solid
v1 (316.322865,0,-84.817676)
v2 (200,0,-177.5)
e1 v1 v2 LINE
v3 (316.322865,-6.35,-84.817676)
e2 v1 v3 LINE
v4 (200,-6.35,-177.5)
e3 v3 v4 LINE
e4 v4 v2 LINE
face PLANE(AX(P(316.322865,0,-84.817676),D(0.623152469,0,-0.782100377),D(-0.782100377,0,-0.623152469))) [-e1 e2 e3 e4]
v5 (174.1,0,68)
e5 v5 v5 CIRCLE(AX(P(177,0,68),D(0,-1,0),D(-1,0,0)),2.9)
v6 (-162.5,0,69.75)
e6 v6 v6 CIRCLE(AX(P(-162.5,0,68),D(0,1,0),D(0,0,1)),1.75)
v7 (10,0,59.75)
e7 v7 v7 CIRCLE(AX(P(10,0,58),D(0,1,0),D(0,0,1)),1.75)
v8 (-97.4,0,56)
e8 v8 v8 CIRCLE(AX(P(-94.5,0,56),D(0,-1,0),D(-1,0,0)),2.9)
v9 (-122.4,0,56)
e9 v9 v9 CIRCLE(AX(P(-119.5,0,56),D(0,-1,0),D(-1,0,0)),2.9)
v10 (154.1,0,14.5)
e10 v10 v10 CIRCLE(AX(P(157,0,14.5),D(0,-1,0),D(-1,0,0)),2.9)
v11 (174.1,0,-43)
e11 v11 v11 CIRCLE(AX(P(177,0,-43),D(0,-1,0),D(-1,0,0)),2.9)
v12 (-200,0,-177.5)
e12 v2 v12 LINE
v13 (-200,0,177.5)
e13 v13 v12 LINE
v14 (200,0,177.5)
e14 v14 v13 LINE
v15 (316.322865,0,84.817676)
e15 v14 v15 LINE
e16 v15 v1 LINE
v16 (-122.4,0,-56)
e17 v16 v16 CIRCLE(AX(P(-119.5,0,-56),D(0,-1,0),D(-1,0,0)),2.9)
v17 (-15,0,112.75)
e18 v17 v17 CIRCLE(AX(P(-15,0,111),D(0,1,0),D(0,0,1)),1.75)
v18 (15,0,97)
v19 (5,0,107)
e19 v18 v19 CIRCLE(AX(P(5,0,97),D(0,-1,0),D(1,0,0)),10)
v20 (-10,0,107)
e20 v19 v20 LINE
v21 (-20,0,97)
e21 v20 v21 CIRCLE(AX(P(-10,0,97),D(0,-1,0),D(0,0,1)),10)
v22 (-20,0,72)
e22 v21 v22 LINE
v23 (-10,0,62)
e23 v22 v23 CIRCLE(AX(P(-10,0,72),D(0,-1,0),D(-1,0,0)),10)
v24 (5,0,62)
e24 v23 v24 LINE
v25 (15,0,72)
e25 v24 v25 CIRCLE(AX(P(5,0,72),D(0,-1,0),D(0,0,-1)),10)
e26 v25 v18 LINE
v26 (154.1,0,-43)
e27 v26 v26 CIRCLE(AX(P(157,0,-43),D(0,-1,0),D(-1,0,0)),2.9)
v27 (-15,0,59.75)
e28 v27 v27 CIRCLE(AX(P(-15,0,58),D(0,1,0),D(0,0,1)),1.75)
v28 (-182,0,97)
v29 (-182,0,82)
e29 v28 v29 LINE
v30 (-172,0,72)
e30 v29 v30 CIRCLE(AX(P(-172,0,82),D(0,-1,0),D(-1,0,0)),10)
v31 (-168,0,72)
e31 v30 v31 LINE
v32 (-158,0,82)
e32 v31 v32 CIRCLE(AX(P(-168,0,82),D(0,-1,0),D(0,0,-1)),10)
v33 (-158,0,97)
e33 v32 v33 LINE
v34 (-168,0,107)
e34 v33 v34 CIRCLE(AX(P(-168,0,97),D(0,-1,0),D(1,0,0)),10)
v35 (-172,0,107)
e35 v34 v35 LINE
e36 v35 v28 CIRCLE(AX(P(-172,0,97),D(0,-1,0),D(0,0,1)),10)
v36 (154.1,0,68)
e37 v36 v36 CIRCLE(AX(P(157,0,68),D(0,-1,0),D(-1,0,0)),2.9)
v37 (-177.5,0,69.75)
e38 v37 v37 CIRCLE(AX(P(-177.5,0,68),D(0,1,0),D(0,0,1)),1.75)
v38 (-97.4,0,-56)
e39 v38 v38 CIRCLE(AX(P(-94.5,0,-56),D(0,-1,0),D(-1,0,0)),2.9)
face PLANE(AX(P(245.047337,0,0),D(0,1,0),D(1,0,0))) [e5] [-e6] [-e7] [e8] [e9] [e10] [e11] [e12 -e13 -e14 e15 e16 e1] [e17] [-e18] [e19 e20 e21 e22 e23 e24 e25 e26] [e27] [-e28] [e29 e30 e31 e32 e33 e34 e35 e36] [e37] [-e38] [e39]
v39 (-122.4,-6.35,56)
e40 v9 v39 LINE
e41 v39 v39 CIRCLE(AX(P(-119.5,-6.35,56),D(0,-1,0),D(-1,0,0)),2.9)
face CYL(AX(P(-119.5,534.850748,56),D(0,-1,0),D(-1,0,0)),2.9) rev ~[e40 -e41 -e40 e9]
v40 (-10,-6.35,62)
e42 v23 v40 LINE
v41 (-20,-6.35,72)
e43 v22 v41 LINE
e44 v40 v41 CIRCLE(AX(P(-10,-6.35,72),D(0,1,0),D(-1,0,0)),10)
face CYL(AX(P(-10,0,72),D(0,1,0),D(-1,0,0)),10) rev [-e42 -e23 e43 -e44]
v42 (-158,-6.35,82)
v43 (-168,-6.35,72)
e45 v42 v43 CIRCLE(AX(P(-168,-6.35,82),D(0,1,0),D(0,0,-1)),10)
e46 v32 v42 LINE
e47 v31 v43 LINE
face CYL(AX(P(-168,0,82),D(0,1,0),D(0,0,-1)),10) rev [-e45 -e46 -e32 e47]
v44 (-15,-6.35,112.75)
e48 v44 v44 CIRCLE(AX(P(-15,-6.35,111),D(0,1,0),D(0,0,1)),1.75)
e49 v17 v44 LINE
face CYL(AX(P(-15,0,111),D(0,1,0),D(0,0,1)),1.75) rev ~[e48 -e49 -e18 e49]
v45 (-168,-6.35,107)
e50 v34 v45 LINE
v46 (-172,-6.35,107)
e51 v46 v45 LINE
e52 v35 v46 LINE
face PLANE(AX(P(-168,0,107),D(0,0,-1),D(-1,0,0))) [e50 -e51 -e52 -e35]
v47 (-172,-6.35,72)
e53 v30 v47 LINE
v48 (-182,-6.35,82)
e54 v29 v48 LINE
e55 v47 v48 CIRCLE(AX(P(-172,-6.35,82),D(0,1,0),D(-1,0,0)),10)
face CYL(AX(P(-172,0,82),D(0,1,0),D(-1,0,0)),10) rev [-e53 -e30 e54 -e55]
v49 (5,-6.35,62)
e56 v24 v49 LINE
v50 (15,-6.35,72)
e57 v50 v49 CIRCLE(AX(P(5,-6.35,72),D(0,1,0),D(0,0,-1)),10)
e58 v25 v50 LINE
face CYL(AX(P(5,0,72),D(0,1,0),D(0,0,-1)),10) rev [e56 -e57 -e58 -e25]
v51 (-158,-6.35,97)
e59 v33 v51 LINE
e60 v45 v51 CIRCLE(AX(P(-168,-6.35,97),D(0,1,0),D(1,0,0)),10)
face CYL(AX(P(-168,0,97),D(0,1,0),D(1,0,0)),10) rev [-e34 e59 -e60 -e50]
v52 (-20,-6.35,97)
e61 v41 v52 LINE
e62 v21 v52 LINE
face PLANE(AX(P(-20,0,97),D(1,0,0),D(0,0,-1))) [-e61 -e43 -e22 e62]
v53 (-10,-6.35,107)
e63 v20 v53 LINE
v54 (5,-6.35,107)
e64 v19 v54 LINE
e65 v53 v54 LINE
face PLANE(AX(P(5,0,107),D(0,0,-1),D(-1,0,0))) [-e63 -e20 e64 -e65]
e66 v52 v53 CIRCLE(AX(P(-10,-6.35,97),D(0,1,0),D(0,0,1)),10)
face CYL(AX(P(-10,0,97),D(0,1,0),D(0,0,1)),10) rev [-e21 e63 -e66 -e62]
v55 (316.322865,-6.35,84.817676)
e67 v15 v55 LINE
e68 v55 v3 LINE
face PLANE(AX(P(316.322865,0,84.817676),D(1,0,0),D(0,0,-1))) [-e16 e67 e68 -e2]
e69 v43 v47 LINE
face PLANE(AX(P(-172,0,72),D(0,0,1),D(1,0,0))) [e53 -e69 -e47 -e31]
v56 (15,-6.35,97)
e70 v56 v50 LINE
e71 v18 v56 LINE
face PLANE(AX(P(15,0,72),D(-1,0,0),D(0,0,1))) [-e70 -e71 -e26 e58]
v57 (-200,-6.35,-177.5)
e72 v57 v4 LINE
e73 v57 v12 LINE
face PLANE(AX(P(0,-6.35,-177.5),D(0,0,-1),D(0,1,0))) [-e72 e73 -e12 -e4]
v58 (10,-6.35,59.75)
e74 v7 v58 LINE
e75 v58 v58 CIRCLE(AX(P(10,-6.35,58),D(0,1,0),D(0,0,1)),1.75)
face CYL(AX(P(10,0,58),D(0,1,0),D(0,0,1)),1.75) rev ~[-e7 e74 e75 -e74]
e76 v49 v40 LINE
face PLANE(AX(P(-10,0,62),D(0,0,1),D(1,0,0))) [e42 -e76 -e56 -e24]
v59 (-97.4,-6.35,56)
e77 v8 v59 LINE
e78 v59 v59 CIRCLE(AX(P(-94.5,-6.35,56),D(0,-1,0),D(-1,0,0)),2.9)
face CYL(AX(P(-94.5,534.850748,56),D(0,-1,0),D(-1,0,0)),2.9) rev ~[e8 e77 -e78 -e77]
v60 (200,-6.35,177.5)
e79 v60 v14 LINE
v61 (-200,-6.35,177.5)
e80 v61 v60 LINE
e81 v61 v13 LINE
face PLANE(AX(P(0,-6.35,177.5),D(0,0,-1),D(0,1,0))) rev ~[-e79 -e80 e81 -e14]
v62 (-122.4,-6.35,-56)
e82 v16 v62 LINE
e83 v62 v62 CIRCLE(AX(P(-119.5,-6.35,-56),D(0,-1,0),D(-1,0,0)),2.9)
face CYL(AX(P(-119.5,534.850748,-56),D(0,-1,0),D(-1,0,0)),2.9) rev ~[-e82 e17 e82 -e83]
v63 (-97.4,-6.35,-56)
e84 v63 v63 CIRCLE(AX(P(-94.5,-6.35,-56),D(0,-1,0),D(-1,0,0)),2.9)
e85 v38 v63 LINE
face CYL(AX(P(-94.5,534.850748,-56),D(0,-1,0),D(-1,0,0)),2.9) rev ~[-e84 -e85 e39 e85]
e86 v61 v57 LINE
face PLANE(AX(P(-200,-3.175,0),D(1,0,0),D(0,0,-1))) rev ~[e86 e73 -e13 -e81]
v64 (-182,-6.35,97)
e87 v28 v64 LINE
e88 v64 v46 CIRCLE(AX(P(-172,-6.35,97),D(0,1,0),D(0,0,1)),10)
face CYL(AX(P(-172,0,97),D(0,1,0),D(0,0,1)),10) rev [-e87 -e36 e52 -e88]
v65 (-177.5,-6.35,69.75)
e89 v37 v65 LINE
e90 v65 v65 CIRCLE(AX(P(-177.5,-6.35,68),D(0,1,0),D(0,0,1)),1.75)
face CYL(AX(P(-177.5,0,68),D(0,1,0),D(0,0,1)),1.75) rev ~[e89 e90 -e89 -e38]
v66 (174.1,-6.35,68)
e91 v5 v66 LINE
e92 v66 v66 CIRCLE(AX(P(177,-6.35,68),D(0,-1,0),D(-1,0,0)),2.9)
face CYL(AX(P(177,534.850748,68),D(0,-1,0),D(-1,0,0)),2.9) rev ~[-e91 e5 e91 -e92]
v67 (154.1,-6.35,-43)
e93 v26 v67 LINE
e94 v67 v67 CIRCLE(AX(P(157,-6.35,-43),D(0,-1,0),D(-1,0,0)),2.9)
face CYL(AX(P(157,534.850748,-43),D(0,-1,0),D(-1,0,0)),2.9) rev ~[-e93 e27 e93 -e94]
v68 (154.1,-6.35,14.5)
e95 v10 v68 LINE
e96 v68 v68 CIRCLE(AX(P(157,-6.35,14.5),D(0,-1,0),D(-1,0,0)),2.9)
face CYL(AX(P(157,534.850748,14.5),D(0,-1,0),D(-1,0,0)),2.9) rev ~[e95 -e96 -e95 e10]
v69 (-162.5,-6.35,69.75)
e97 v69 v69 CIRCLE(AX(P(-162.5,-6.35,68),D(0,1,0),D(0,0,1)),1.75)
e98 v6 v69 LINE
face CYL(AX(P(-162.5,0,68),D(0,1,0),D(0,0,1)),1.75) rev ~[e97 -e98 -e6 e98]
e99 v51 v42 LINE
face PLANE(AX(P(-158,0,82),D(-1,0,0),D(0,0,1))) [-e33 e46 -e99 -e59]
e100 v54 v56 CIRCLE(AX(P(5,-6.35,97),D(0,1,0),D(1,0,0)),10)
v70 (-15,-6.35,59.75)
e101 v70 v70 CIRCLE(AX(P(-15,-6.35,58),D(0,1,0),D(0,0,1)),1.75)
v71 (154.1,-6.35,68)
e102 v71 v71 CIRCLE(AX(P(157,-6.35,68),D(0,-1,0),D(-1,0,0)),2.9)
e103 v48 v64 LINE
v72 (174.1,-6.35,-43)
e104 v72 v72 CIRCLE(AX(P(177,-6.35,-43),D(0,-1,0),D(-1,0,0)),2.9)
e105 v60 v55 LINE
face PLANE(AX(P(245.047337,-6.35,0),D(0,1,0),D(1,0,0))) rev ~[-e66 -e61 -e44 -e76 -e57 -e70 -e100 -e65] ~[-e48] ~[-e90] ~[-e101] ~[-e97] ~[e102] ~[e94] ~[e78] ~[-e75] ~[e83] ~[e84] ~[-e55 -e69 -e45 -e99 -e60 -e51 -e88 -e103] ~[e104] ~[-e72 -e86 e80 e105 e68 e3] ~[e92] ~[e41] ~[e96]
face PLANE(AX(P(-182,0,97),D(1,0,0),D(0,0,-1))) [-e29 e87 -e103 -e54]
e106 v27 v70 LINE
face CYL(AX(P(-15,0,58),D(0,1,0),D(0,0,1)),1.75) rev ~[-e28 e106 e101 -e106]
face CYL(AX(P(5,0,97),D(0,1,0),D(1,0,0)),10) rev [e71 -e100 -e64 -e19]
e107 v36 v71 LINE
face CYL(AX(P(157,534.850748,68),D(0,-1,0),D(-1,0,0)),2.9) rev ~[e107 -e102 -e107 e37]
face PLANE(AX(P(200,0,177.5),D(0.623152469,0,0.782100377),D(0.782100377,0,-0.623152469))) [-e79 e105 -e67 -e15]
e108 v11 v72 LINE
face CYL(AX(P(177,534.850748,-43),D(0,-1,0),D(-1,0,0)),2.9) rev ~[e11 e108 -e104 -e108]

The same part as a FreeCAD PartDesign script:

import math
import FreeCAD as App
import Part
import Sketcher
Q = App.Units.Quantity


def add_polygon(sketch, points):
    """Adds a closed chain of lines whose ends are joined by coincident constraints."""
    first, n = sketch.GeometryCount, len(points)
    for a, b in zip(points, points[1:] + points[:1]):
        sketch.addGeometry(Part.LineSegment(App.Vector(*a, 0), App.Vector(*b, 0)), False)
    for i in range(n):
        sketch.addConstraint(Sketcher.Constraint("Coincident", first + i, 2, first + (i + 1) % n, 1))

doc = App.newDocument("Part")
params = doc.addObject("Spreadsheet::Sheet", "Params")
for row, (alias, value) in enumerate([
    ("sketch1_height", "355 mm"),
    ("sketch1_width", "6.35 mm"),
    ("pad1_length", "400 mm"),
    ("sketch2_radius", "10 mm"),
    ("sketch2_diameter", "3.5 mm"),
    ("sketch2_width", "15 mm"),
    ("sketch2_width2", "4 mm"),
    ("pocket1_length", "10 mm"),
    ("sketch3_diameter", "5.8 mm"),
    ("hole_diameter", "5.8 mm"),
    ("sketch4_height", "355 mm"),
    ("pad2_length", "6.35 mm"),
], start=1):
    params.set(f"A{row}", alias)
    params.set(f"B{row}", "=" + value)
    params.setAlias(f"B{row}", alias)

body = doc.addObject("PartDesign::Body", "Body")

# Sketch on YZ plane
sketch1 = body.newObject("Sketcher::SketchObject", "Sketch")
sketch1.AttachmentSupport = (doc.getObject("YZ_Plane"), [""])
sketch1.MapMode = "FlatFace"
add_polygon(sketch1, [(0, 178), (-6, 178), (-6, -178), (0, -178)])  # lines 0-3
sketch1.addConstraint(Sketcher.Constraint("Horizontal", 0))
sketch1.addConstraint(Sketcher.Constraint("Vertical", 1))
sketch1.addConstraint(Sketcher.Constraint("Horizontal", 2))
sketch1.addConstraint(Sketcher.Constraint("Vertical", 3))
sketch1.addConstraint(Sketcher.Constraint("Symmetric", 2, 2, 3, 2, -1, 1))
sketch1.addConstraint(Sketcher.Constraint("DistanceY", 1, 2, 1, 1, Q("355 mm")))
sketch1.addConstraint(Sketcher.Constraint("DistanceX", 0, 2, 0, 1, Q("6.35 mm")))
sketch1.setExpression("Constraints[9]", "Params.sketch1_height")
sketch1.setExpression("Constraints[10]", "Params.sketch1_width")
pad1 = body.newObject("PartDesign::Pad", "Pad")
pad1.Profile = sketch1
pad1.setExpression("Length", "Params.pad1_length")
pad1.Midplane = True

# Sketch on XZ plane
sketch2 = body.newObject("Sketcher::SketchObject", "Sketch001")
sketch2.AttachmentSupport = (doc.getObject("XZ_Plane"), [""])
sketch2.MapMode = "FlatFace"
sketch2.addGeometry(Part.Circle(App.Vector(-15, 111, 0), App.Vector(0, 0, 1), 1.8), False)
sketch2.addGeometry(Part.Circle(App.Vector(-15, 58, 0), App.Vector(0, 0, 1), 1.8), False)
sketch2.addGeometry(Part.Circle(App.Vector(10, 58, 0), App.Vector(0, 0, 1), 1.8), False)
sketch2.addGeometry(Part.Circle(App.Vector(-162.5, 68, 0), App.Vector(0, 0, 1), 1.8), False)
sketch2.addGeometry(Part.Circle(App.Vector(-177.5, 68, 0), App.Vector(0, 0, 1), 1.8), False)
sketch2.addGeometry(Part.LineSegment(App.Vector(5, 62, 0), App.Vector(-10, 62, 0)), False)
sketch2.addGeometry(Part.ArcOfCircle(Part.Circle(App.Vector(-10, 72, 0), App.Vector(0, 0, 1), 10), math.radians(180), math.radians(270)), False)
sketch2.addGeometry(Part.LineSegment(App.Vector(-20, 72, 0), App.Vector(-20, 97, 0)), False)
sketch2.addGeometry(Part.ArcOfCircle(Part.Circle(App.Vector(-10, 97, 0), App.Vector(0, 0, 1), 10), math.radians(90), math.radians(180)), False)
sketch2.addGeometry(Part.LineSegment(App.Vector(-10, 107, 0), App.Vector(5, 107, 0)), False)
sketch2.addGeometry(Part.ArcOfCircle(Part.Circle(App.Vector(5, 97, 0), App.Vector(0, 0, 1), 10), math.radians(0), math.radians(90)), False)
sketch2.addGeometry(Part.LineSegment(App.Vector(15, 97, 0), App.Vector(15, 72, 0)), False)
sketch2.addGeometry(Part.ArcOfCircle(Part.Circle(App.Vector(5, 72, 0), App.Vector(0, 0, 1), 10), math.radians(-90), math.radians(0)), False)
sketch2.addGeometry(Part.LineSegment(App.Vector(-172, 107, 0), App.Vector(-168, 107, 0)), False)
sketch2.addGeometry(Part.ArcOfCircle(Part.Circle(App.Vector(-168, 97, 0), App.Vector(0, 0, 1), 10), math.radians(0), math.radians(90)), False)
sketch2.addGeometry(Part.LineSegment(App.Vector(-158, 97, 0), App.Vector(-158, 82, 0)), False)
sketch2.addGeometry(Part.ArcOfCircle(Part.Circle(App.Vector(-168, 82, 0), App.Vector(0, 0, 1), 10), math.radians(-90), math.radians(0)), False)
sketch2.addGeometry(Part.LineSegment(App.Vector(-168, 72, 0), App.Vector(-172, 72, 0)), False)
sketch2.addGeometry(Part.ArcOfCircle(Part.Circle(App.Vector(-172, 82, 0), App.Vector(0, 0, 1), 10), math.radians(180), math.radians(270)), False)
sketch2.addGeometry(Part.LineSegment(App.Vector(-182, 82, 0), App.Vector(-182, 97, 0)), False)
sketch2.addGeometry(Part.ArcOfCircle(Part.Circle(App.Vector(-172, 97, 0), App.Vector(0, 0, 1), 10), math.radians(90), math.radians(180)), False)
sketch2.addConstraint(Sketcher.Constraint("Tangent", 5, 2, 6, 2))
sketch2.addConstraint(Sketcher.Constraint("Tangent", 6, 1, 7, 1))
sketch2.addConstraint(Sketcher.Constraint("Tangent", 7, 2, 8, 2))
sketch2.addConstraint(Sketcher.Constraint("Tangent", 8, 1, 9, 1))
sketch2.addConstraint(Sketcher.Constraint("Tangent", 9, 2, 10, 2))
sketch2.addConstraint(Sketcher.Constraint("Tangent", 10, 1, 11, 1))
sketch2.addConstraint(Sketcher.Constraint("Tangent", 11, 2, 12, 2))
sketch2.addConstraint(Sketcher.Constraint("Tangent", 12, 1, 5, 1))
sketch2.addConstraint(Sketcher.Constraint("Tangent", 13, 2, 14, 2))
sketch2.addConstraint(Sketcher.Constraint("Tangent", 14, 1, 15, 1))
sketch2.addConstraint(Sketcher.Constraint("Tangent", 15, 2, 16, 2))
sketch2.addConstraint(Sketcher.Constraint("Tangent", 16, 1, 17, 1))
sketch2.addConstraint(Sketcher.Constraint("Tangent", 17, 2, 18, 2))
sketch2.addConstraint(Sketcher.Constraint("Tangent", 18, 1, 19, 1))
sketch2.addConstraint(Sketcher.Constraint("Tangent", 19, 2, 20, 2))
sketch2.addConstraint(Sketcher.Constraint("Tangent", 20, 1, 13, 1))
sketch2.addConstraint(Sketcher.Constraint("Horizontal", 5))
sketch2.addConstraint(Sketcher.Constraint("Vertical", 7))
sketch2.addConstraint(Sketcher.Constraint("Horizontal", 9))
sketch2.addConstraint(Sketcher.Constraint("Vertical", 11))
sketch2.addConstraint(Sketcher.Constraint("Horizontal", 13))
sketch2.addConstraint(Sketcher.Constraint("Vertical", 15))
sketch2.addConstraint(Sketcher.Constraint("Horizontal", 17))
sketch2.addConstraint(Sketcher.Constraint("Vertical", 19))
sketch2.addConstraint(Sketcher.Constraint("Equal", 0, 1))
sketch2.addConstraint(Sketcher.Constraint("Equal", 1, 2))
sketch2.addConstraint(Sketcher.Constraint("Equal", 2, 3))
sketch2.addConstraint(Sketcher.Constraint("Equal", 3, 4))
sketch2.addConstraint(Sketcher.Constraint("Equal", 6, 8))
sketch2.addConstraint(Sketcher.Constraint("Equal", 8, 10))
sketch2.addConstraint(Sketcher.Constraint("Equal", 10, 12))
sketch2.addConstraint(Sketcher.Constraint("Equal", 12, 14))
sketch2.addConstraint(Sketcher.Constraint("Equal", 14, 16))
sketch2.addConstraint(Sketcher.Constraint("Equal", 16, 18))
sketch2.addConstraint(Sketcher.Constraint("Equal", 18, 20))
sketch2.addConstraint(Sketcher.Constraint("Horizontal", 1, 3, 2, 3))
sketch2.addConstraint(Sketcher.Constraint("Horizontal", 3, 3, 4, 3))
sketch2.addConstraint(Sketcher.Constraint("Horizontal", 10, 3, 14, 3))
sketch2.addConstraint(Sketcher.Constraint("Horizontal", 11, 2, 16, 1))
sketch2.addConstraint(Sketcher.Constraint("Vertical", 0, 3, 1, 3))
sketch2.addConstraint(Sketcher.Constraint("Equal", 9, 15))
sketch2.addConstraint(Sketcher.Constraint("Radius", 6, Q("10 mm")))
sketch2.addConstraint(Sketcher.Constraint("Diameter", 0, Q("3.5 mm")))
sketch2.addConstraint(Sketcher.Constraint("DistanceX", 5, 2, 5, 1, Q("15 mm")))
sketch2.addConstraint(Sketcher.Constraint("DistanceX", 13, 1, 13, 2, Q("4 mm")))
sketch2.addConstraint(Sketcher.Constraint("DistanceX", 0, 3, -1, 1, Q("15 mm")))
sketch2.addConstraint(Sketcher.Constraint("DistanceY", -1, 1, 0, 3, Q("111 mm")))
sketch2.addConstraint(Sketcher.Constraint("DistanceY", -1, 1, 1, 3, Q("58 mm")))
sketch2.addConstraint(Sketcher.Constraint("DistanceX", -1, 1, 2, 3, Q("10 mm")))
sketch2.addConstraint(Sketcher.Constraint("DistanceY", -1, 1, 3, 3, Q("68 mm")))
sketch2.addConstraint(Sketcher.Constraint("DistanceX", 6, 3, -1, 1, Q("10 mm")))
sketch2.addConstraint(Sketcher.Constraint("DistanceY", -1, 1, 6, 3, Q("72 mm")))
sketch2.addConstraint(Sketcher.Constraint("DistanceX", 14, 3, -1, 1, Q("168 mm")))
sketch2.addConstraint(Sketcher.Constraint("DistanceX", 4, 3, 3, 3, Q("15 mm")))
sketch2.addConstraint(Sketcher.Constraint("DistanceX", 3, 3, -1, 1, Q("162.5 mm")))
sketch2.setExpression("Constraints[41]", "Params.sketch2_radius")
sketch2.setExpression("Constraints[42]", "Params.sketch2_diameter")
sketch2.setExpression("Constraints[43]", "Params.sketch2_width")
sketch2.setExpression("Constraints[44]", "Params.sketch2_width2")
pocket1 = body.newObject("PartDesign::Pocket", "Pocket")
pocket1.Profile = sketch2
pocket1.setExpression("Length", "Params.pocket1_length")
pocket1.Reversed = True

# Sketch on XZ plane
sketch3 = body.newObject("Sketcher::SketchObject", "Sketch002")
sketch3.AttachmentSupport = (doc.getObject("XZ_Plane"), [""])
sketch3.MapMode = "FlatFace"
sketch3.addGeometry(Part.Circle(App.Vector(-119.5, -56, 0), App.Vector(0, 0, 1), 2.9), False)
sketch3.addGeometry(Part.Circle(App.Vector(-94.5, -56, 0), App.Vector(0, 0, 1), 2.9), False)
sketch3.addGeometry(Part.Circle(App.Vector(-94.5, 56, 0), App.Vector(0, 0, 1), 2.9), False)
sketch3.addGeometry(Part.Circle(App.Vector(-119.5, 56, 0), App.Vector(0, 0, 1), 2.9), False)
sketch3.addGeometry(Part.Circle(App.Vector(157, 68, 0), App.Vector(0, 0, 1), 2.9), False)
sketch3.addGeometry(Part.Circle(App.Vector(157, 14.5, 0), App.Vector(0, 0, 1), 2.9), False)
sketch3.addGeometry(Part.Circle(App.Vector(157, -43, 0), App.Vector(0, 0, 1), 2.9), False)
sketch3.addGeometry(Part.Circle(App.Vector(177, -43, 0), App.Vector(0, 0, 1), 2.9), False)
sketch3.addGeometry(Part.Circle(App.Vector(177, 68, 0), App.Vector(0, 0, 1), 2.9), False)
sketch3.addConstraint(Sketcher.Constraint("Equal", 0, 1))
sketch3.addConstraint(Sketcher.Constraint("Equal", 1, 2))
sketch3.addConstraint(Sketcher.Constraint("Equal", 2, 3))
sketch3.addConstraint(Sketcher.Constraint("Equal", 3, 4))
sketch3.addConstraint(Sketcher.Constraint("Equal", 4, 5))
sketch3.addConstraint(Sketcher.Constraint("Equal", 5, 6))
sketch3.addConstraint(Sketcher.Constraint("Equal", 6, 7))
sketch3.addConstraint(Sketcher.Constraint("Equal", 7, 8))
sketch3.addConstraint(Sketcher.Constraint("Symmetric", 1, 3, 2, 3, -1))
sketch3.addConstraint(Sketcher.Constraint("Symmetric", 0, 3, 3, 3, -1))
sketch3.addConstraint(Sketcher.Constraint("Horizontal", 0, 3, 1, 3))
sketch3.addConstraint(Sketcher.Constraint("Horizontal", 6, 3, 7, 3))
sketch3.addConstraint(Sketcher.Constraint("Horizontal", 4, 3, 8, 3))
sketch3.addConstraint(Sketcher.Constraint("Vertical", 4, 3, 5, 3))
sketch3.addConstraint(Sketcher.Constraint("Vertical", 5, 3, 6, 3))
sketch3.addConstraint(Sketcher.Constraint("Vertical", 7, 3, 8, 3))
sketch3.addConstraint(Sketcher.Constraint("Diameter", 0, Q("5.8 mm")))
sketch3.addConstraint(Sketcher.Constraint("DistanceY", 0, 3, -1, 1, Q("56 mm")))
sketch3.addConstraint(Sketcher.Constraint("DistanceX", -1, 1, 4, 3, Q("157 mm")))
sketch3.addConstraint(Sketcher.Constraint("DistanceY", -1, 1, 4, 3, Q("68 mm")))
sketch3.addConstraint(Sketcher.Constraint("DistanceY", 6, 3, -1, 1, Q("43 mm")))
sketch3.addConstraint(Sketcher.Constraint("DistanceX", -1, 1, 7, 3, Q("177 mm")))
sketch3.addConstraint(Sketcher.Constraint("DistanceX", 0, 3, 1, 3, Q("25 mm")))
sketch3.addConstraint(Sketcher.Constraint("DistanceX", 0, 3, -1, 1, Q("119.5 mm")))
sketch3.addConstraint(Sketcher.Constraint("DistanceY", -1, 1, 5, 3, Q("14.5 mm")))
sketch3.setExpression("Constraints[16]", "Params.sketch3_diameter")
doc.recompute()
hole = body.newObject("PartDesign::Hole", "Hole")
hole.Profile = sketch3
hole.ThreadType = "None"
hole.setExpression("Diameter", "Params.hole_diameter")
hole.DepthType = "ThroughAll"
hole.Reversed = True

# Sketch on XZ plane
sketch4 = body.newObject("Sketcher::SketchObject", "Sketch003")
sketch4.AttachmentSupport = (doc.getObject("XZ_Plane"), [""])
sketch4.MapMode = "FlatFace"
add_polygon(sketch4, [(200, -178), (200, 178), (316, 85), (316, -85)])  # lines 0-3
sketch4.addConstraint(Sketcher.Constraint("Vertical", 0))
sketch4.addConstraint(Sketcher.Constraint("Vertical", 2))
sketch4.addConstraint(Sketcher.Constraint("Equal", 1, 3))
sketch4.addConstraint(Sketcher.Constraint("DistanceY", 0, 1, 0, 2, Q("355 mm")))
sketch4.addConstraint(Sketcher.Constraint("DistanceX", -1, 1, 0, 2, Q("200 mm")))
sketch4.addConstraint(Sketcher.Constraint("DistanceY", -1, 1, 0, 2, Q("177.5 mm")))
sketch4.addConstraint(Sketcher.Constraint("DistanceY", 2, 2, 2, 1, Q("169.635352 mm")))
sketch4.addConstraint(Sketcher.Constraint("Distance", 1, Q("148.731376 mm")))
sketch4.setExpression("Constraints[7]", "Params.sketch4_height")
pad2 = body.newObject("PartDesign::Pad", "Pad001")
pad2.Profile = sketch4
pad2.setExpression("Length", "Params.pad2_length")

doc.recompute()
